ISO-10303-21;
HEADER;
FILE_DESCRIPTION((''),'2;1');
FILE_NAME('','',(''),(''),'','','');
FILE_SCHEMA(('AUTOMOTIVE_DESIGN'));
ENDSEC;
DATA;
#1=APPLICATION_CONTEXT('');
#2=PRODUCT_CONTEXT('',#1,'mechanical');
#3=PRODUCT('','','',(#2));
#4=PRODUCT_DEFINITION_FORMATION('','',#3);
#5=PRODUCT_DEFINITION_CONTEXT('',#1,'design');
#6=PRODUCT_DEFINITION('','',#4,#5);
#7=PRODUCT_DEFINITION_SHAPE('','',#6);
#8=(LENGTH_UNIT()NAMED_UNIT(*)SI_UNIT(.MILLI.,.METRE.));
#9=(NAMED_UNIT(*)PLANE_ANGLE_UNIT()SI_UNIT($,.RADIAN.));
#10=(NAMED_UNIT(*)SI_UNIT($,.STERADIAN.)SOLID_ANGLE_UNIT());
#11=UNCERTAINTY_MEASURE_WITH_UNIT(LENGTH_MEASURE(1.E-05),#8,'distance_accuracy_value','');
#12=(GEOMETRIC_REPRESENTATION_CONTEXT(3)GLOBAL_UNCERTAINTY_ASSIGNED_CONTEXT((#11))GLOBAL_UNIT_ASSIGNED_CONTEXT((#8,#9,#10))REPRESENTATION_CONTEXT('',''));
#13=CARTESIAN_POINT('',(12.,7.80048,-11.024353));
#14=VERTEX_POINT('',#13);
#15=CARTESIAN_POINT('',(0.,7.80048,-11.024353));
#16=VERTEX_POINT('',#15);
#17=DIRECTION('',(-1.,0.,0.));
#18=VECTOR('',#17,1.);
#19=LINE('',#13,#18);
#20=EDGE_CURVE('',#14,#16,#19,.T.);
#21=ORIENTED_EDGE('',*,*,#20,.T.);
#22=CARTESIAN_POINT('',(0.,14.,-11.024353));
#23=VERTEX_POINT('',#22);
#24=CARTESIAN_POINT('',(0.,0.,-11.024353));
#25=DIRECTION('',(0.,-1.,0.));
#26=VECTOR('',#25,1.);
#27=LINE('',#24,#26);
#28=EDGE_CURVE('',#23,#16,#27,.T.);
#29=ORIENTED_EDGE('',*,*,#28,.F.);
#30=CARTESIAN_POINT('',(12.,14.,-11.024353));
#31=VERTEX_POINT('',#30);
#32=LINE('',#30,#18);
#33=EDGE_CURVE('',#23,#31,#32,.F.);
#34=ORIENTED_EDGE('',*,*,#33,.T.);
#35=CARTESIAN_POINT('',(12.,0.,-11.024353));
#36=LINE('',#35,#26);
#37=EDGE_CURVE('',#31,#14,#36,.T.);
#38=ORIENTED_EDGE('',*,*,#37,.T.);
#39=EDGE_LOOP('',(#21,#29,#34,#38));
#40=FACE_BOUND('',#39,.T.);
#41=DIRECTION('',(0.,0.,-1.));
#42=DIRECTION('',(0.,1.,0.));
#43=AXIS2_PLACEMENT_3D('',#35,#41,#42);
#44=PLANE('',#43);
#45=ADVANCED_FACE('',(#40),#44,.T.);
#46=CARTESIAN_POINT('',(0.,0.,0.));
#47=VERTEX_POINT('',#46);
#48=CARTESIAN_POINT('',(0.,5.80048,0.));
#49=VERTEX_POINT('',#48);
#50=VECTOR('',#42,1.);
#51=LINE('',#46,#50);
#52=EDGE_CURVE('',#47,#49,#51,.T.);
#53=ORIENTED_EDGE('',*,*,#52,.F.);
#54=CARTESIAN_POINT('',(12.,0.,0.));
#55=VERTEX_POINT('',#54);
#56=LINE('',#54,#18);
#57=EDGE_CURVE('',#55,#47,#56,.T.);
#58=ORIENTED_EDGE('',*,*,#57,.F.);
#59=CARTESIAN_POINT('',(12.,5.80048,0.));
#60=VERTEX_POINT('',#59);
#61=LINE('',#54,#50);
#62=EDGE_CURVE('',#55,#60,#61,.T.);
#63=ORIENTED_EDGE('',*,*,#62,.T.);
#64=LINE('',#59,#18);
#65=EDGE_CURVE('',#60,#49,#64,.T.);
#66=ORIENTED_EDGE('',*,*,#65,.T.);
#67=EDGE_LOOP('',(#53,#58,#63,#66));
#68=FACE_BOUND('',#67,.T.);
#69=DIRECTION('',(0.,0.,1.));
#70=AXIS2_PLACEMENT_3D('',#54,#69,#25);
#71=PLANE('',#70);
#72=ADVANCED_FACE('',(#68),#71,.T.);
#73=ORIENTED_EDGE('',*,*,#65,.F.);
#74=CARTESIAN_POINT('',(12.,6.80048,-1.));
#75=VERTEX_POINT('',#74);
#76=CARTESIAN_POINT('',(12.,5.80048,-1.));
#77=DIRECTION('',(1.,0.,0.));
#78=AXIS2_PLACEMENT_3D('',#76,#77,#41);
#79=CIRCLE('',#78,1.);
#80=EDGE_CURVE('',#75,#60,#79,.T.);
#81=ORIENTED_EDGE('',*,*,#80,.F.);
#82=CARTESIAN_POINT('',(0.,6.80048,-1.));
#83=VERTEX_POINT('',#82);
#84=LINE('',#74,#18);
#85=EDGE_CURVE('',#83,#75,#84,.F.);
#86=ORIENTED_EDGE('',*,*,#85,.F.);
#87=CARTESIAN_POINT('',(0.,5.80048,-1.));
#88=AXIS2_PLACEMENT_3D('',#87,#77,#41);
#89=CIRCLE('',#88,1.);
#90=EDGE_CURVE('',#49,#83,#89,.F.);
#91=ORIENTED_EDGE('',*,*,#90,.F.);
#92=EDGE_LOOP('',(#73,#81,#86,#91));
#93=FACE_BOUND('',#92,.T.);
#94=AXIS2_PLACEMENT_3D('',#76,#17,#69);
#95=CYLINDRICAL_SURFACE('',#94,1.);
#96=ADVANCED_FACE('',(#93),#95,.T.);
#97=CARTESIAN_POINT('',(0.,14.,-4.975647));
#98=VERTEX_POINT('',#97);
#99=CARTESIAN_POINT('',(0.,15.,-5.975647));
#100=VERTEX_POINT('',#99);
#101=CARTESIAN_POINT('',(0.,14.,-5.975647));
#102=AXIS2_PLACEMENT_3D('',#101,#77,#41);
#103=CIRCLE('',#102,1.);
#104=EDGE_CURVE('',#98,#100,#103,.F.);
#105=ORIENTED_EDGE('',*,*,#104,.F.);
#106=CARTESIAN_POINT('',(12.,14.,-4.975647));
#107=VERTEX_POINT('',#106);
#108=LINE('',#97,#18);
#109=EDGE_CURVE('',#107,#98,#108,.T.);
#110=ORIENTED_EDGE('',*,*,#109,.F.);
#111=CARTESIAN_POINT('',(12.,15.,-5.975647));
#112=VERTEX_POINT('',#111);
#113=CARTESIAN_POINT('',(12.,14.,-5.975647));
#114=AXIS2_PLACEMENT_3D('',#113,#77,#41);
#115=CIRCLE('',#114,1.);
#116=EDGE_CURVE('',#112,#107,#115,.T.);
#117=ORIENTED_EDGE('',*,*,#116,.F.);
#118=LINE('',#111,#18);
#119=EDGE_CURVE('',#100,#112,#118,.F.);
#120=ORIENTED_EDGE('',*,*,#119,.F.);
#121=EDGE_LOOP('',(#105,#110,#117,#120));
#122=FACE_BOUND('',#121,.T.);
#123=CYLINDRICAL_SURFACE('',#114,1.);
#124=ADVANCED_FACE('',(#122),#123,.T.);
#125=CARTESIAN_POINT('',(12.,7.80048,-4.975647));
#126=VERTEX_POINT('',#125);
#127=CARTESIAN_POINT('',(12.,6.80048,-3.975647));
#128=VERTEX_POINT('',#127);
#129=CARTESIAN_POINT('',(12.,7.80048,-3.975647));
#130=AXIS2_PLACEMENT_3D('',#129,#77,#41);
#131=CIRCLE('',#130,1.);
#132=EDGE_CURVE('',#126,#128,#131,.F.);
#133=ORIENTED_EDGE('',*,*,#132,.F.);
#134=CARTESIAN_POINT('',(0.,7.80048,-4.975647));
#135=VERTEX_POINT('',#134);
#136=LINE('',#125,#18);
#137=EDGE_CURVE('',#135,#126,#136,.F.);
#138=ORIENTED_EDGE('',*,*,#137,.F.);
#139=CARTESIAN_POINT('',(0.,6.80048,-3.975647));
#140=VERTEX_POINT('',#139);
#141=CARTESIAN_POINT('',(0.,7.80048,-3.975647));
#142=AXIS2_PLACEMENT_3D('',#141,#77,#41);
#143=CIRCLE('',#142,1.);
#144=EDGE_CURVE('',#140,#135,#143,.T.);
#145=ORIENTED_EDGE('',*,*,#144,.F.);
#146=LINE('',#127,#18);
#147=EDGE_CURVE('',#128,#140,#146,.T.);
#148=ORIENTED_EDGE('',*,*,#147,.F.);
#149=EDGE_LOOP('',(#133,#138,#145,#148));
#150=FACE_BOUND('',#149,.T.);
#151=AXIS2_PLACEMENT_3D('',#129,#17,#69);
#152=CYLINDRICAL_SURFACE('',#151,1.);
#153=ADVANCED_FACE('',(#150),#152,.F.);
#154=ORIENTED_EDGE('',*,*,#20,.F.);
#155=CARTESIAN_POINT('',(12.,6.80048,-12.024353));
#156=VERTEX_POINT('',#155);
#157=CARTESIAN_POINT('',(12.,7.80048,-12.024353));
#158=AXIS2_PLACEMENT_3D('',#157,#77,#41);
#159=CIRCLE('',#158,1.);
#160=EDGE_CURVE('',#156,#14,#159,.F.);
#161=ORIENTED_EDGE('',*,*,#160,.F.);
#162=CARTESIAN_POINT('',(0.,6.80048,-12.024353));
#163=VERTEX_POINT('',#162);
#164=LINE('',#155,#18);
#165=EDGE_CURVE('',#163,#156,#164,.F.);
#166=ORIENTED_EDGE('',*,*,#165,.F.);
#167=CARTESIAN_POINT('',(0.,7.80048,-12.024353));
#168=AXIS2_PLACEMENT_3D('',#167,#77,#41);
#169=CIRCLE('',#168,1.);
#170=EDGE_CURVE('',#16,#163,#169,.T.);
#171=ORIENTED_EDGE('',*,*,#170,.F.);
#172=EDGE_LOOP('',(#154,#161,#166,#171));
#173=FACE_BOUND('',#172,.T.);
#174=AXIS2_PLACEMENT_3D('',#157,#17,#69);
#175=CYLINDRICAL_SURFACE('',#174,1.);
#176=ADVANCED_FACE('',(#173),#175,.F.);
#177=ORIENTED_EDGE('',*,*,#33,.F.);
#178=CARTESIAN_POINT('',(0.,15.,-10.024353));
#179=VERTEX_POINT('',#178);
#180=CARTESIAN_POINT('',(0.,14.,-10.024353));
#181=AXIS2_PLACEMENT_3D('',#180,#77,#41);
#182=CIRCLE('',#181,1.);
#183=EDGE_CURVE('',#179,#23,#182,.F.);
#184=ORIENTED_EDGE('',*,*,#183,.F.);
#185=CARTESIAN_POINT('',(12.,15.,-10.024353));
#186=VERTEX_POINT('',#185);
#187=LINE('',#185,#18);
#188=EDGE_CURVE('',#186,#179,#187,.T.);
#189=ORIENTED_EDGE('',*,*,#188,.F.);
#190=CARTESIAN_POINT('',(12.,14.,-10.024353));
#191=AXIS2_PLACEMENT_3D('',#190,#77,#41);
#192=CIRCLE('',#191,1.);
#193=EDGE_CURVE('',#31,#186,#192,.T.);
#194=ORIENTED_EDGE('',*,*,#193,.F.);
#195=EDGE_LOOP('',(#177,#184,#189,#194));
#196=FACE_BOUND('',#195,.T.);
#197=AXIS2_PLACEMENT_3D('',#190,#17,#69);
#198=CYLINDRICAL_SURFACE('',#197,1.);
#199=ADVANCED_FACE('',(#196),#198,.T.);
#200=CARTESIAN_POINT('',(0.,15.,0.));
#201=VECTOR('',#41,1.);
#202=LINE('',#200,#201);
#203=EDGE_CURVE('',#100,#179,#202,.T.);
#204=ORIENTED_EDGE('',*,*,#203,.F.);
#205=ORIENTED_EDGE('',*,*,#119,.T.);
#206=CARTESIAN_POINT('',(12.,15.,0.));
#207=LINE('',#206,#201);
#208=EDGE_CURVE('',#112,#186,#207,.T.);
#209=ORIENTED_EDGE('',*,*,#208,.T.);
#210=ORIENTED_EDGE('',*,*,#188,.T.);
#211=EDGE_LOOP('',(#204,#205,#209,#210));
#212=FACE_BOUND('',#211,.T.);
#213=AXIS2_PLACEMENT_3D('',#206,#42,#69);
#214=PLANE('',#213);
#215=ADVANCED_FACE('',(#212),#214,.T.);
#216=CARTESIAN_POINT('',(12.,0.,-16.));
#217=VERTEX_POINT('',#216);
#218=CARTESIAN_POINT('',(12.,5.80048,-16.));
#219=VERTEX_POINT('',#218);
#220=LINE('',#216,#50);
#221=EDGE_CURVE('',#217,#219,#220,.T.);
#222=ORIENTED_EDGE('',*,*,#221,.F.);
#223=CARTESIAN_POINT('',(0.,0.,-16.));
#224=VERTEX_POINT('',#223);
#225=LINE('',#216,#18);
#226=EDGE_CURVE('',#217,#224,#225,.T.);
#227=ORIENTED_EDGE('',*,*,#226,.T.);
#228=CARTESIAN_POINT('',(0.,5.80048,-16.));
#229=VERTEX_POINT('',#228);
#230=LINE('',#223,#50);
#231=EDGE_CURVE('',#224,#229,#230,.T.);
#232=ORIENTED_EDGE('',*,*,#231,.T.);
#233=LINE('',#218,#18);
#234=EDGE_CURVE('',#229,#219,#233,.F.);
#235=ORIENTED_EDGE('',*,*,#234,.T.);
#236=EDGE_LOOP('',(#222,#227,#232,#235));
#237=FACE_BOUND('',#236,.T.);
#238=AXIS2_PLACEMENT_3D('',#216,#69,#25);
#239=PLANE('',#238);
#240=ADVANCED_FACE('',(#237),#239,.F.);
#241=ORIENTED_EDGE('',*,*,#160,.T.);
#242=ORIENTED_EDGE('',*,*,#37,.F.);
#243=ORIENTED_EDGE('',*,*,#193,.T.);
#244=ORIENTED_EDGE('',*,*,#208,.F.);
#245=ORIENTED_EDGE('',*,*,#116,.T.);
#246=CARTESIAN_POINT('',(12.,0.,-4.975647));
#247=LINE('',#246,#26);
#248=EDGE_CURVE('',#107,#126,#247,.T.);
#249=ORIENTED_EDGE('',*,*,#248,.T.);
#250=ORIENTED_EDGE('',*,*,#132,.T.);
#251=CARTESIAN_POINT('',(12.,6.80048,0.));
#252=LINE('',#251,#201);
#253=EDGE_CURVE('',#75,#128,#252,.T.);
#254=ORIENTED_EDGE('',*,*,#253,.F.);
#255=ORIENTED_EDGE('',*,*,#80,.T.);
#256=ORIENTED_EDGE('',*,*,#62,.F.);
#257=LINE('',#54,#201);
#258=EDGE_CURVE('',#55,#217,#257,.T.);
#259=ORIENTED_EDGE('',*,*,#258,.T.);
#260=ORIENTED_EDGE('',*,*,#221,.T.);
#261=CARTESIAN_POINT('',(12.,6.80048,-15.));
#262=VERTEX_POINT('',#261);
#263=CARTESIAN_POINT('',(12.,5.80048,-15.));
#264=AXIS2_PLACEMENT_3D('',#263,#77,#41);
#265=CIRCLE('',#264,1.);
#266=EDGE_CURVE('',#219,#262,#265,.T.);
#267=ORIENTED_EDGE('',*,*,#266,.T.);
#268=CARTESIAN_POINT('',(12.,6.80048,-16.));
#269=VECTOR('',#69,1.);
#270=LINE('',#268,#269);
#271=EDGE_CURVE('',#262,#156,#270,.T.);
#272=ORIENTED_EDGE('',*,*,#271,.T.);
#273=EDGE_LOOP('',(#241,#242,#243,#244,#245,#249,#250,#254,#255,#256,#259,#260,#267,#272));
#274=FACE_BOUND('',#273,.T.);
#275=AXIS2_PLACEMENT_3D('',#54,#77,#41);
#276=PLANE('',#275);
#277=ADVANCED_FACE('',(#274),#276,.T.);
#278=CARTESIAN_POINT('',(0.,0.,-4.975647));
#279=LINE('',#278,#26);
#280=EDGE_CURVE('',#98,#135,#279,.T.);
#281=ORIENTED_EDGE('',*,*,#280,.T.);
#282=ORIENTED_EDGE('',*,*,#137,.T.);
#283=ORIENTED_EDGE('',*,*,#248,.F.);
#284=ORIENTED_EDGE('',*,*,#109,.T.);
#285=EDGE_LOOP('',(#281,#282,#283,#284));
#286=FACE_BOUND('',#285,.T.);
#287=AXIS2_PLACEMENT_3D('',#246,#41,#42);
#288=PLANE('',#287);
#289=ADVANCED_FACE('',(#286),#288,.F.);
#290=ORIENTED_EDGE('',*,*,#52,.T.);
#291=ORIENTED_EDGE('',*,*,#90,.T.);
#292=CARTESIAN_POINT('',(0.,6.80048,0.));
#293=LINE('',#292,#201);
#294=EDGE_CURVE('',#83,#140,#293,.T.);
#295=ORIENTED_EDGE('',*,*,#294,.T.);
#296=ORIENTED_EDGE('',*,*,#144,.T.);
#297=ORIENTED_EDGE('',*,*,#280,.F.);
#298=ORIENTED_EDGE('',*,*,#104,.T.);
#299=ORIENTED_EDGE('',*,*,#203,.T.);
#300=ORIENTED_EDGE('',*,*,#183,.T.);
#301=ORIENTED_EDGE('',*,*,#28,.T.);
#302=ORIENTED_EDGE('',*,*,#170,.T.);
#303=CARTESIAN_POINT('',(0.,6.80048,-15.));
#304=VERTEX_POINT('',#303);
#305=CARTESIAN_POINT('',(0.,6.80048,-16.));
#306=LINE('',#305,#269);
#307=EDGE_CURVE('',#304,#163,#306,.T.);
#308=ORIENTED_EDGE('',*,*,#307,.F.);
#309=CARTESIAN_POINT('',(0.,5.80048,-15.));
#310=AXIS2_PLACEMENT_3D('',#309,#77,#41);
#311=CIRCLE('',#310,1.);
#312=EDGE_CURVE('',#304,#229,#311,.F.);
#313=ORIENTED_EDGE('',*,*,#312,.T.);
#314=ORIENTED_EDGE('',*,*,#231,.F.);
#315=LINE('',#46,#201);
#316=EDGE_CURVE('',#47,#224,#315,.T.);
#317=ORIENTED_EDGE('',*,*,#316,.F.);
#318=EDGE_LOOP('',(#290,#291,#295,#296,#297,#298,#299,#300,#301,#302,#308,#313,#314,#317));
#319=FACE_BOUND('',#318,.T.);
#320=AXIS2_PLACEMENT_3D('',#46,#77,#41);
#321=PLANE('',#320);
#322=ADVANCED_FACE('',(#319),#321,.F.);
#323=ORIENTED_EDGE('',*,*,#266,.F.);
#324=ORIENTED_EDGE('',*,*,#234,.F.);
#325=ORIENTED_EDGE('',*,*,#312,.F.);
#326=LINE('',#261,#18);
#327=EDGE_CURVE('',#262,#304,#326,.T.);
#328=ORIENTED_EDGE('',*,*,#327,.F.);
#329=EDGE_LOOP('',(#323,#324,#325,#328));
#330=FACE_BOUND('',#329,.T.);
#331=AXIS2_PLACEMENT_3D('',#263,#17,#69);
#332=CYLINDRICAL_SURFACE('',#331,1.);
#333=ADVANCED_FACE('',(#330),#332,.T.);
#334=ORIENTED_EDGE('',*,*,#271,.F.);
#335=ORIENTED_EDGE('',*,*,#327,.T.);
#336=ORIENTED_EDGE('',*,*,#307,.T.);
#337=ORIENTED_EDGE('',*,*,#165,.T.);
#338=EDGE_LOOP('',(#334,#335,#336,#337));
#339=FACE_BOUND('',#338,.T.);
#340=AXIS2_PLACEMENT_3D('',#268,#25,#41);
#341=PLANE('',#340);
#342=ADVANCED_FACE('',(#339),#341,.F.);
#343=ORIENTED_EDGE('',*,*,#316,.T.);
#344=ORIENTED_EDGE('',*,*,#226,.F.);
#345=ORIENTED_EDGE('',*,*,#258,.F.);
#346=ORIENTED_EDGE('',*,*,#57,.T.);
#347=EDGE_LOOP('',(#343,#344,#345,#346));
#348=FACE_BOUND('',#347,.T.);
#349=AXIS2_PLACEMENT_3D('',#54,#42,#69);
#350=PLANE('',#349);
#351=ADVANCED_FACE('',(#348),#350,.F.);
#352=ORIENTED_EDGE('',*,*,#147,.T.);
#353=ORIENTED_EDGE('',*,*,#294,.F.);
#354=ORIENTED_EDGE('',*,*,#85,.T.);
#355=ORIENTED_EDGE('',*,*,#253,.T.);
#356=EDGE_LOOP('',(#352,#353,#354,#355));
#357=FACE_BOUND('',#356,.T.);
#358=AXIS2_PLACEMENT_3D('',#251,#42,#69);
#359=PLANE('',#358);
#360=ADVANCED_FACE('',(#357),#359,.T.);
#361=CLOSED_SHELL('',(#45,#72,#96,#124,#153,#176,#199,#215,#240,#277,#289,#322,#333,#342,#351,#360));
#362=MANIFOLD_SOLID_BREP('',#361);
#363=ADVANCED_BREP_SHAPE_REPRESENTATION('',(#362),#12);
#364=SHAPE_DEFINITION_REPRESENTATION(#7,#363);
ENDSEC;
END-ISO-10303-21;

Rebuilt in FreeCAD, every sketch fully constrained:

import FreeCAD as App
import Part
import Sketcher
Q = App.Units.Quantity


def edges_at(feature, points):
    """Names of the edges that pass closest to the given points."""
    edges = feature.Shape.Edges
    near = lambda p: min(range(len(edges)), key=lambda i: edges[i].distToShape(Part.Vertex(*p))[0])
    return sorted({f"Edge{near(p) + 1}" for p in points})


def add_polygon(sketch, points):
    """Adds a closed chain of lines whose ends are joined by coincident constraints."""
    first, n = sketch.GeometryCount, len(points)
    for a, b in zip(points, points[1:] + points[:1]):
        sketch.addGeometry(Part.LineSegment(App.Vector(*a, 0), App.Vector(*b, 0)), False)
    for i in range(n):
        sketch.addConstraint(Sketcher.Constraint("Coincident", first + i, 2, first + (i + 1) % n, 1))

doc = App.newDocument("Part")
body = doc.addObject("PartDesign::Body", "Body")

sketch1 = doc.addObject("Sketcher::SketchObject", "Sketch")
body.addObject(sketch1)
sketch1.AttachmentSupport = (doc.YZ_Plane, [""])
sketch1.MapMode = "FlatFace"
add_polygon(sketch1, [(6.8, 0), (0, 0), (0, -8), (15, -8), (15, -5), (6.8, -5)])
sketch1.addConstraint([
    Sketcher.Constraint("Horizontal", 0),
    Sketcher.Constraint("Vertical", 1),
    Sketcher.Constraint("Horizontal", 2),
    Sketcher.Constraint("Vertical", 3),
    Sketcher.Constraint("Horizontal", 4),
    Sketcher.Constraint("Vertical", 5),
    Sketcher.Constraint("Coincident", 0, 2, -1, 1),
    Sketcher.Constraint("DistanceX", 2, 1, 2, 2, Q("15 mm")),
    Sketcher.Constraint("DistanceY", 1, 2, 1, 1, Q("8 mm")),
    Sketcher.Constraint("DistanceX", 0, 2, 0, 1, Q("6.80048 mm")),
    Sketcher.Constraint("DistanceY", 3, 1, 3, 2, Q("3.024353 mm")),
])
pad1 = doc.addObject("PartDesign::Pad", "Pad")
body.addObject(pad1)
pad1.Profile = sketch1
pad1.Length = 12
doc.recompute()

fillet = doc.addObject("PartDesign::Fillet", "Fillet")
body.addObject(fillet)
fillet.Base = (pad1, edges_at(pad1, [(6, 6.8, 0), (6, 6.8, -4.976), (6, 15, -4.976)]))
fillet.Radius = 1
doc.recompute()

datumplane = doc.addObject("PartDesign::Plane", "DatumPlane")
body.addObject(datumplane)
datumplane.AttachmentSupport = (doc.XY_Plane, [""])
datumplane.MapMode = "FlatFace"
datumplane.AttachmentOffset = App.Placement(App.Vector(0, 0, -8), App.Rotation())
mirrored = doc.addObject("PartDesign::Mirrored", "Mirrored")
body.addObject(mirrored)
mirrored.Originals = [pad1]
mirrored.MirrorPlane = (datumplane, [""])
body.Tip = mirrored
doc.recompute()

fillet2 = doc.addObject("PartDesign::Fillet", "Fillet001")
body.addObject(fillet2)
fillet2.Base = (mirrored, edges_at(mirrored, [(6, 6.8, -16), (6, 6.8, -11.024), (6, 15, -11.024)]))
fillet2.Radius = 1

doc.recompute()
